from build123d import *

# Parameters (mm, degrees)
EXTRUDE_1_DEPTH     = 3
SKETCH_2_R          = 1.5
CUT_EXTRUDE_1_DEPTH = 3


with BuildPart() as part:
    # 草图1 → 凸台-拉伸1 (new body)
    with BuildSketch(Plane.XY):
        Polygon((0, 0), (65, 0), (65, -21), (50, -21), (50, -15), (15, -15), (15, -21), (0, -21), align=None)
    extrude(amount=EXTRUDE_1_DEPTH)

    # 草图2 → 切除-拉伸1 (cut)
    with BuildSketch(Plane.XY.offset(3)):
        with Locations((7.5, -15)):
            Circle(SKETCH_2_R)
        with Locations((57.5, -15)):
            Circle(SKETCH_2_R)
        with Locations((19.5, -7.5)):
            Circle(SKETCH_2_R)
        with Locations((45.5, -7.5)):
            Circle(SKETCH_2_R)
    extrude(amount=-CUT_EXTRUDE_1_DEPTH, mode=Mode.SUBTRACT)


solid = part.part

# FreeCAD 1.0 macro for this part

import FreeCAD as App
import Part
import Sketcher

V = App.Vector

doc = App.newDocument("Part")
body = doc.addObject("PartDesign::Body", "Body")

sketch1 = body.newObject("Sketcher::SketchObject", "Sketch")
sketch1.AttachmentSupport = (doc.getObject("XY_Plane"), [""])
sketch1.MapMode = "FlatFace"
sketch1.addGeometry([
    Part.LineSegment(V(65, 0, 0), V(0, 0, 0)),
    Part.LineSegment(V(0, 0, 0), V(0, -21, 0)),
    Part.LineSegment(V(0, -21, 0), V(15, -21, 0)),
    Part.LineSegment(V(15, -21, 0), V(15, -15, 0)),
    Part.LineSegment(V(15, -15, 0), V(50, -15, 0)),
    Part.LineSegment(V(50, -15, 0), V(50, -21, 0)),
    Part.LineSegment(V(50, -21, 0), V(65, -21, 0)),
    Part.LineSegment(V(65, -21, 0), V(65, 0, 0)),
], False)
sketch1.addConstraint([
    Sketcher.Constraint("Coincident", 0, 2, 1, 1),
    Sketcher.Constraint("Coincident", 1, 2, 2, 1),
    Sketcher.Constraint("Coincident", 2, 2, 3, 1),
    Sketcher.Constraint("Coincident", 3, 2, 4, 1),
    Sketcher.Constraint("Coincident", 4, 2, 5, 1),
    Sketcher.Constraint("Coincident", 5, 2, 6, 1),
    Sketcher.Constraint("Coincident", 6, 2, 7, 1),
    Sketcher.Constraint("Coincident", 7, 2, 0, 1),
    Sketcher.Constraint("Horizontal", 0),
    Sketcher.Constraint("Vertical", 1),
    Sketcher.Constraint("Horizontal", 2),
    Sketcher.Constraint("Vertical", 3),
    Sketcher.Constraint("Horizontal", 4),
    Sketcher.Constraint("Vertical", 5),
    Sketcher.Constraint("Horizontal", 6),
    Sketcher.Constraint("Vertical", 7),
    Sketcher.Constraint("Coincident", 0, 2, -1, 1),
    Sketcher.Constraint("Horizontal", 2, 2, 5, 2),
    Sketcher.Constraint("Equal", 2, 6),
    Sketcher.Constraint("DistanceX", 0, 2, 0, 1, 65.0),
    Sketcher.Constraint("DistanceX", 2, 1, 2, 2, 15.0),
    Sketcher.Constraint("DistanceY", 1, 2, 1, 1, 21.0),
    Sketcher.Constraint("DistanceY", 3, 1, 3, 2, 6.0),
])
pad1 = body.newObject("PartDesign::Pad", "Pad")
pad1.Profile = sketch1
pad1.Length = 3

sketch2 = body.newObject("Sketcher::SketchObject", "Sketch001")
sketch2.AttachmentSupport = (doc.getObject("XY_Plane"), [""])
sketch2.MapMode = "FlatFace"
sketch2.AttachmentOffset = App.Placement(V(0, 0, 3), App.Rotation())
sketch2.addGeometry([
    Part.Circle(V(7.5, -15, 0), V(0, 0, 1), 1.5),
    Part.Circle(V(57.5, -15, 0), V(0, 0, 1), 1.5),
    Part.Circle(V(19.5, -7.5, 0), V(0, 0, 1), 1.5),
    Part.Circle(V(45.5, -7.5, 0), V(0, 0, 1), 1.5),
], False)
sketch2.addConstraint([
    Sketcher.Constraint("Equal", 0, 1),
    Sketcher.Constraint("Equal", 1, 2),
    Sketcher.Constraint("Equal", 2, 3),
    Sketcher.Constraint("Horizontal", 0, 3, 1, 3),
    Sketcher.Constraint("Horizontal", 2, 3, 3, 3),
    Sketcher.Constraint("Diameter", 0, 3.0),
    Sketcher.Constraint("DistanceY", 0, 3, -1, 1, 15.0),
    Sketcher.Constraint("DistanceX", 0, 3, 1, 3, 50.0),
    Sketcher.Constraint("DistanceX", 0, 3, 2, 3, 12.0),
    Sketcher.Constraint("DistanceX", 3, 3, 1, 3, 12.0),
    Sketcher.Constraint("DistanceX", -1, 1, 0, 3, 7.5),
    Sketcher.Constraint("DistanceY", 2, 3, -1, 1, 7.5),
])
pocket1 = body.newObject("PartDesign::Pocket", "Pocket")
pocket1.Profile = sketch2
pocket1.Length = 3

doc.recompute()
